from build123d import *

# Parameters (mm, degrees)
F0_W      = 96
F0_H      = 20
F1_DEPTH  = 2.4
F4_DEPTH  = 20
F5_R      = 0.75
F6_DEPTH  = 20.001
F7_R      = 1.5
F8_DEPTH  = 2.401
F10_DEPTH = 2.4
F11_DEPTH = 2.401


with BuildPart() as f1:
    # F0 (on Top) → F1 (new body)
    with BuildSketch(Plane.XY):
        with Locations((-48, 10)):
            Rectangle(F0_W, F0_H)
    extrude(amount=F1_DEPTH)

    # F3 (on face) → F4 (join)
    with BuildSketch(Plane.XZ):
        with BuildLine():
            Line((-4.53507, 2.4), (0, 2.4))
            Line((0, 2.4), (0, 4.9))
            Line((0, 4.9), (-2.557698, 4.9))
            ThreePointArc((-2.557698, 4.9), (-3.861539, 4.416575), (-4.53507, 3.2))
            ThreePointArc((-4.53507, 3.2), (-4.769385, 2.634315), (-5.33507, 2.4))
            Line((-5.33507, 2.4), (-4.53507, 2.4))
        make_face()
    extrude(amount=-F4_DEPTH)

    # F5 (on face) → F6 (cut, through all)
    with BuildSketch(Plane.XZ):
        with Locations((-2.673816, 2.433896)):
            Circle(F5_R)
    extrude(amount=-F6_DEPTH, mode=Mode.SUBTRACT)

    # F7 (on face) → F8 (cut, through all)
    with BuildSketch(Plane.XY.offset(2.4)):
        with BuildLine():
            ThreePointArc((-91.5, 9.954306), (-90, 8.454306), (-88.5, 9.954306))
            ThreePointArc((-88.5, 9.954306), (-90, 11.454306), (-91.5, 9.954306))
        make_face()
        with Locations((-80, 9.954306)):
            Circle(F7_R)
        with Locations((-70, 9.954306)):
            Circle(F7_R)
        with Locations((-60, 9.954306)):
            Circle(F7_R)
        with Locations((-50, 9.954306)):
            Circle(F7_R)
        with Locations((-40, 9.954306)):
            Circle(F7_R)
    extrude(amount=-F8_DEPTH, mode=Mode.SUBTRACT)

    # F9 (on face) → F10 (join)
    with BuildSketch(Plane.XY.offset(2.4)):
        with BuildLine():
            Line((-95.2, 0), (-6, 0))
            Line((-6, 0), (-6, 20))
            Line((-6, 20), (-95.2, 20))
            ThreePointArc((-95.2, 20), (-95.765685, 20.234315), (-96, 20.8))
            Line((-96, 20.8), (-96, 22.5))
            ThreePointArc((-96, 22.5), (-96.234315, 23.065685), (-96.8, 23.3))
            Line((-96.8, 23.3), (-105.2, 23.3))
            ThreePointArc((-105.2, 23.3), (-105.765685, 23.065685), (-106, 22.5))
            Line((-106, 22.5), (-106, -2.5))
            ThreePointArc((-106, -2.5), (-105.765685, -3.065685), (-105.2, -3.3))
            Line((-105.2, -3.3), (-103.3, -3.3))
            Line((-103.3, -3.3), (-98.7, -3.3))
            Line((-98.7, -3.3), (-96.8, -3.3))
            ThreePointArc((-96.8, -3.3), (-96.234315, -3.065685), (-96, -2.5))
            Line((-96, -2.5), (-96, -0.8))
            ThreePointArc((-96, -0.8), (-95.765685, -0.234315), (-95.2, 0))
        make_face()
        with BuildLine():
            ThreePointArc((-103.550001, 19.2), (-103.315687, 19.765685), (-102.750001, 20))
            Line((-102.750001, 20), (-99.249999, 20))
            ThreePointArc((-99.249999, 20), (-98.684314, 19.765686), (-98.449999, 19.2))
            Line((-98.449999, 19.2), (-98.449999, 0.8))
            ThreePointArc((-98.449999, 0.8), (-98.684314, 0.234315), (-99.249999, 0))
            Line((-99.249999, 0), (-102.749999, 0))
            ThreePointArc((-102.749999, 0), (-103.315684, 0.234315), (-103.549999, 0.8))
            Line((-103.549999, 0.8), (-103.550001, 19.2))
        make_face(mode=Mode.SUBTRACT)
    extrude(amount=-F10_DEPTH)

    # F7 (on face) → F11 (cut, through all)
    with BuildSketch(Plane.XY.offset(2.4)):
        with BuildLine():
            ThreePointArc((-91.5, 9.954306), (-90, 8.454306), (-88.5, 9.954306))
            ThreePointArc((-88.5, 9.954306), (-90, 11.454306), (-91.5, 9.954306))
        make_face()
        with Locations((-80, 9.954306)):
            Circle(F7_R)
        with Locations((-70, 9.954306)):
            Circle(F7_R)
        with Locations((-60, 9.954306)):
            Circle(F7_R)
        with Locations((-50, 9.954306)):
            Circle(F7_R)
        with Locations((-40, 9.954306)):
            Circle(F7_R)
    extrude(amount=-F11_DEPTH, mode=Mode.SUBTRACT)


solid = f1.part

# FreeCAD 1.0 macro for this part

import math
import FreeCAD as App
import Part
import Sketcher
from FreeCAD import Vector
Q = App.Units.Quantity

doc = App.newDocument("Part")
params = doc.addObject("Spreadsheet::Sheet", "Params")
for row, (alias, value) in enumerate([
    ("sketch1_width", "96 mm"),
    ("sketch1_height", "20 mm"),
    ("pad1_length", "2.4 mm"),
    ("sketch2_radius", "1.999999 mm"),
    ("sketch2_radius2", "0.800001 mm"),
    ("sketch2_height", "2.5 mm"),
    ("pad2_length", "20 mm"),
    ("sketch3_diameter", "1.5 mm"),
    ("sketch4_diameter", "3 mm"),
    ("sketch5_radius", "0.800001 mm"),
    ("sketch5_height", "20 mm"),
    ("sketch5_height2", "25 mm"),
    ("sketch5_width", "89.2 mm"),
    ("sketch5_width2", "8.4 mm"),
    ("pad3_length", "2.4 mm"),
    ("sketch6_diameter", "3 mm"),
], start=1):
    params.set(f"A{row}", alias)
    params.set(f"B{row}", "=" + value)
    params.setAlias(f"B{row}", alias)

body = doc.addObject("PartDesign::Body", "Body")

sketch1 = doc.addObject("Sketcher::SketchObject", "Sketch")
body.addObject(sketch1)
sketch1.AttachmentSupport = (doc.XY_Plane, [""])
sketch1.MapMode = "FlatFace"
sketch1.addGeometry(Part.LineSegment(Vector(-96, 20, 0), Vector(-96, 0, 0)), False)
sketch1.addGeometry(Part.LineSegment(Vector(-96, 0, 0), Vector(0, 0, 0)), False)
sketch1.addGeometry(Part.LineSegment(Vector(0, 0, 0), Vector(0, 20, 0)), False)
sketch1.addGeometry(Part.LineSegment(Vector(0, 20, 0), Vector(-96, 20, 0)), False)
sketch1.addConstraint(Sketcher.Constraint("Coincident", 0, 2, 1, 1))
sketch1.addConstraint(Sketcher.Constraint("Coincident", 1, 2, 2, 1))
sketch1.addConstraint(Sketcher.Constraint("Coincident", 2, 2, 3, 1))
sketch1.addConstraint(Sketcher.Constraint("Coincident", 3, 2, 0, 1))
sketch1.addConstraint(Sketcher.Constraint("Vertical", 0))
sketch1.addConstraint(Sketcher.Constraint("Horizontal", 1))
sketch1.addConstraint(Sketcher.Constraint("Vertical", 2))
sketch1.addConstraint(Sketcher.Constraint("Horizontal", 3))
sketch1.addConstraint(Sketcher.Constraint("Coincident", 1, 2, -1, 1))
sketch1.addConstraint(Sketcher.Constraint("DistanceX", 1, 1, 1, 2, Q("96 mm")))
sketch1.addConstraint(Sketcher.Constraint("DistanceY", 0, 2, 0, 1, Q("20 mm")))
sketch1.setExpression("Constraints[9]", "Params.sketch1_width")
sketch1.setExpression("Constraints[10]", "Params.sketch1_height")
pad1 = doc.addObject("PartDesign::Pad", "Pad")
body.addObject(pad1)
pad1.Profile = sketch1
pad1.setExpression("Length", "Params.pad1_length")

sketch2 = doc.addObject("Sketcher::SketchObject", "Sketch001")
body.addObject(sketch2)
sketch2.AttachmentSupport = (doc.XZ_Plane, [""])
sketch2.MapMode = "FlatFace"
sketch2.addGeometry(Part.LineSegment(Vector(0, 2.4, 0), Vector(0, 4.9, 0)), False)
sketch2.addGeometry(Part.LineSegment(Vector(0, 4.9, 0), Vector(-2.6, 4.9, 0)), False)
sketch2.addGeometry(Part.ArcOfCircle(Part.Circle(Vector(-2.6, 2.9, 0), Vector(0, 0, 1), 2), math.radians(90), math.radians(171)), False)
sketch2.addGeometry(Part.ArcOfCircle(Part.Circle(Vector(-5.3, 3.2, 0), Vector(0, 0, 1), 0.8), math.radians(-90), math.radians(0)), False)
sketch2.addGeometry(Part.LineSegment(Vector(-5.3, 2.4, 0), Vector(0, 2.4, 0)), False)
sketch2.addConstraint(Sketcher.Constraint("Coincident", 0, 2, 1, 1))
sketch2.addConstraint(Sketcher.Constraint("Tangent", 1, 2, 2, 1))
sketch2.addConstraint(Sketcher.Constraint("Coincident", 2, 2, 3, 2))
sketch2.addConstraint(Sketcher.Constraint("Tangent", 3, 1, 4, 1))
sketch2.addConstraint(Sketcher.Constraint("Coincident", 4, 2, 0, 1))
sketch2.addConstraint(Sketcher.Constraint("Vertical", 0))
sketch2.addConstraint(Sketcher.Constraint("Horizontal", 1))
sketch2.addConstraint(Sketcher.Constraint("Horizontal", 4))
sketch2.addConstraint(Sketcher.Constraint("PointOnObject", 0, 2, -2))
sketch2.addConstraint(Sketcher.Constraint("Horizontal", 3, 3, 2, 2))
sketch2.addConstraint(Sketcher.Constraint("Radius", 2, Q("1.999999 mm")))
sketch2.addConstraint(Sketcher.Constraint("Radius", 3, Q("0.800001 mm")))
sketch2.addConstraint(Sketcher.Constraint("DistanceY", 0, 1, 0, 2, Q("2.5 mm")))
sketch2.addConstraint(Sketcher.Constraint("DistanceY", -1, 1, 2, 3, Q("2.900001 mm")))
sketch2.addConstraint(Sketcher.Constraint("DistanceX", 4, 1, 4, 2, Q("5.33507 mm")))
sketch2.setExpression("Constraints[10]", "Params.sketch2_radius")
sketch2.setExpression("Constraints[11]", "Params.sketch2_radius2")
sketch2.setExpression("Constraints[12]", "Params.sketch2_height")
pad2 = doc.addObject("PartDesign::Pad", "Pad001")
body.addObject(pad2)
pad2.Profile = sketch2
pad2.setExpression("Length", "Params.pad2_length")
pad2.Reversed = True

sketch3 = doc.addObject("Sketcher::SketchObject", "Sketch002")
body.addObject(sketch3)
sketch3.AttachmentSupport = (doc.XZ_Plane, [""])
sketch3.MapMode = "FlatFace"
sketch3.addGeometry(Part.Circle(Vector(-2.7, 2.4, 0), Vector(0, 0, 1), 0.8), False)
sketch3.addConstraint(Sketcher.Constraint("Diameter", 0, Q("1.5 mm")))
sketch3.addConstraint(Sketcher.Constraint("DistanceX", 0, 3, -1, 1, Q("2.673816 mm")))
sketch3.addConstraint(Sketcher.Constraint("DistanceY", -1, 1, 0, 3, Q("2.433896 mm")))
sketch3.setExpression("Constraints[0]", "Params.sketch3_diameter")
pocket1 = doc.addObject("PartDesign::Pocket", "Pocket")
body.addObject(pocket1)
pocket1.Profile = sketch3
pocket1.Type = "ThroughAll"

sketch4 = doc.addObject("Sketcher::SketchObject", "Sketch003")
body.addObject(sketch4)
sketch4.AttachmentSupport = (doc.XY_Plane, [""])
sketch4.MapMode = "FlatFace"
sketch4.AttachmentOffset = App.Placement(Vector(0, 0, 2.4), App.Rotation())
sketch4.addGeometry(Part.Circle(Vector(-90, 10, 0), Vector(0, 0, 1), 1.5), False)
sketch4.addGeometry(Part.Circle(Vector(-80, 10, 0), Vector(0, 0, 1), 1.5), False)
sketch4.addGeometry(Part.Circle(Vector(-70, 10, 0), Vector(0, 0, 1), 1.5), False)
sketch4.addGeometry(Part.Circle(Vector(-60, 10, 0), Vector(0, 0, 1), 1.5), False)
sketch4.addGeometry(Part.Circle(Vector(-50, 10, 0), Vector(0, 0, 1), 1.5), False)
sketch4.addGeometry(Part.Circle(Vector(-40, 10, 0), Vector(0, 0, 1), 1.5), False)
sketch4.addConstraint(Sketcher.Constraint("Equal", 0, 1))
sketch4.addConstraint(Sketcher.Constraint("Equal", 1, 2))
sketch4.addConstraint(Sketcher.Constraint("Equal", 2, 3))
sketch4.addConstraint(Sketcher.Constraint("Equal", 3, 4))
sketch4.addConstraint(Sketcher.Constraint("Equal", 4, 5))
sketch4.addConstraint(Sketcher.Constraint("Horizontal", 0, 3, 1, 3))
sketch4.addConstraint(Sketcher.Constraint("Horizontal", 1, 3, 2, 3))
sketch4.addConstraint(Sketcher.Constraint("Horizontal", 2, 3, 3, 3))
sketch4.addConstraint(Sketcher.Constraint("Horizontal", 3, 3, 4, 3))
sketch4.addConstraint(Sketcher.Constraint("Horizontal", 4, 3, 5, 3))
sketch4.addConstraint(Sketcher.Constraint("Diameter", 0, Q("3 mm")))
sketch4.addConstraint(Sketcher.Constraint("DistanceX", 0, 3, -1, 1, Q("90 mm")))
sketch4.addConstraint(Sketcher.Constraint("DistanceX", 1, 3, -1, 1, Q("80 mm")))
sketch4.addConstraint(Sketcher.Constraint("DistanceX", 2, 3, -1, 1, Q("70 mm")))
sketch4.addConstraint(Sketcher.Constraint("DistanceX", 3, 3, -1, 1, Q("60 mm")))
sketch4.addConstraint(Sketcher.Constraint("DistanceX", 4, 3, -1, 1, Q("50 mm")))
sketch4.addConstraint(Sketcher.Constraint("DistanceX", 5, 3, -1, 1, Q("40 mm")))
sketch4.addConstraint(Sketcher.Constraint("DistanceY", -1, 1, 0, 3, Q("9.954306 mm")))
sketch4.setExpression("Constraints[10]", "Params.sketch4_diameter")
pocket2 = doc.addObject("PartDesign::Pocket", "Pocket001")
body.addObject(pocket2)
pocket2.Profile = sketch4
pocket2.Type = "ThroughAll"

sketch5 = doc.addObject("Sketcher::SketchObject", "Sketch004")
body.addObject(sketch5)
sketch5.AttachmentSupport = (doc.XY_Plane, [""])
sketch5.MapMode = "FlatFace"
sketch5.AttachmentOffset = App.Placement(Vector(0, 0, 2.4), App.Rotation())
sketch5.addGeometry(Part.LineSegment(Vector(-95.2, 0, 0), Vector(-6, 0, 0)), False)
sketch5.addGeometry(Part.LineSegment(Vector(-6, 0, 0), Vector(-6, 20, 0)), False)
sketch5.addGeometry(Part.LineSegment(Vector(-6, 20, 0), Vector(-95.2, 20, 0)), False)
sketch5.addGeometry(Part.ArcOfCircle(Part.Circle(Vector(-95.2, 20.8, 0), Vector(0, 0, 1), 0.8), math.radians(-180), math.radians(-90)), False)
sketch5.addGeometry(Part.LineSegment(Vector(-96, 20.8, 0), Vector(-96, 22.5, 0)), False)
sketch5.addGeometry(Part.ArcOfCircle(Part.Circle(Vector(-96.8, 22.5, 0), Vector(0, 0, 1), 0.8), math.radians(0), math.radians(90)), False)
sketch5.addGeometry(Part.LineSegment(Vector(-96.8, 23.3, 0), Vector(-105.2, 23.3, 0)), False)
sketch5.addGeometry(Part.ArcOfCircle(Part.Circle(Vector(-105.2, 22.5, 0), Vector(0, 0, 1), 0.8), math.radians(90), math.radians(180)), False)
sketch5.addGeometry(Part.LineSegment(Vector(-106, 22.5, 0), Vector(-106, -2.5, 0)), False)
sketch5.addGeometry(Part.ArcOfCircle(Part.Circle(Vector(-105.2, -2.5, 0), Vector(0, 0, 1), 0.8), math.radians(-180), math.radians(-90)), False)
sketch5.addGeometry(Part.LineSegment(Vector(-105.2, -3.3, 0), Vector(-96.8, -3.3, 0)), False)
sketch5.addGeometry(Part.ArcOfCircle(Part.Circle(Vector(-96.8, -2.5, 0), Vector(0, 0, 1), 0.8), math.radians(-90), math.radians(0)), False)
sketch5.addGeometry(Part.LineSegment(Vector(-96, -2.5, 0), Vector(-96, -0.8, 0)), False)
sketch5.addGeometry(Part.ArcOfCircle(Part.Circle(Vector(-95.2, -0.8, 0), Vector(0, 0, 1), 0.8), math.radians(90), math.radians(180)), False)
sketch5.addGeometry(Part.LineSegment(Vector(-103.5, 0.8, 0), Vector(-103.6, 19.2, 0)), False)
sketch5.addGeometry(Part.ArcOfCircle(Part.Circle(Vector(-102.8, 19.2, 0), Vector(0, 0, 1), 0.8), math.radians(90), math.radians(180)), False)
sketch5.addGeometry(Part.LineSegment(Vector(-102.8, 20, 0), Vector(-99.2, 20, 0)), False)
sketch5.addGeometry(Part.ArcOfCircle(Part.Circle(Vector(-99.2, 19.2, 0), Vector(0, 0, 1), 0.8), math.radians(0), math.radians(90)), False)
sketch5.addGeometry(Part.LineSegment(Vector(-98.4, 19.2, 0), Vector(-98.4, 0.8, 0)), False)
sketch5.addGeometry(Part.ArcOfCircle(Part.Circle(Vector(-99.3, 0.8, 0), Vector(0, 0, 1), 0.8), math.radians(-90), math.radians(0)), False)
sketch5.addGeometry(Part.LineSegment(Vector(-99.2, 0, 0), Vector(-102.7, 0, 0)), False)
sketch5.addGeometry(Part.ArcOfCircle(Part.Circle(Vector(-102.7, 0.8, 0), Vector(0, 0, 1), 0.8), math.radians(-180), math.radians(-90)), False)
sketch5.addConstraint(Sketcher.Constraint("Coincident", 0, 2, 1, 1))
sketch5.addConstraint(Sketcher.Constraint("Coincident", 1, 2, 2, 1))
sketch5.addConstraint(Sketcher.Constraint("Tangent", 2, 2, 3, 2))
sketch5.addConstraint(Sketcher.Constraint("Tangent", 3, 1, 4, 1))
sketch5.addConstraint(Sketcher.Constraint("Tangent", 4, 2, 5, 1))
sketch5.addConstraint(Sketcher.Constraint("Tangent", 5, 2, 6, 1))
sketch5.addConstraint(Sketcher.Constraint("Tangent", 6, 2, 7, 1))
sketch5.addConstraint(Sketcher.Constraint("Tangent", 7, 2, 8, 1))
sketch5.addConstraint(Sketcher.Constraint("Tangent", 8, 2, 9, 1))
sketch5.addConstraint(Sketcher.Constraint("Tangent", 9, 2, 10, 1))
sketch5.addConstraint(Sketcher.Constraint("Tangent", 10, 2, 11, 1))
sketch5.addConstraint(Sketcher.Constraint("Tangent", 11, 2, 12, 1))
sketch5.addConstraint(Sketcher.Constraint("Tangent", 12, 2, 13, 2))
sketch5.addConstraint(Sketcher.Constraint("Tangent", 13, 1, 0, 1))
sketch5.addConstraint(Sketcher.Constraint("Tangent", 14, 2, 15, 2))
sketch5.addConstraint(Sketcher.Constraint("Tangent", 15, 1, 16, 1))
sketch5.addConstraint(Sketcher.Constraint("Tangent", 16, 2, 17, 2))
sketch5.addConstraint(Sketcher.Constraint("Tangent", 17, 1, 18, 1))
sketch5.addConstraint(Sketcher.Constraint("Tangent", 18, 2, 19, 2))
sketch5.addConstraint(Sketcher.Constraint("Tangent", 19, 1, 20, 1))
sketch5.addConstraint(Sketcher.Constraint("Tangent", 20, 2, 21, 2))
sketch5.addConstraint(Sketcher.Constraint("Tangent", 21, 1, 14, 1))
sketch5.addConstraint(Sketcher.Constraint("Horizontal", 0))
sketch5.addConstraint(Sketcher.Constraint("Vertical", 1))
sketch5.addConstraint(Sketcher.Constraint("Horizontal", 2))
sketch5.addConstraint(Sketcher.Constraint("Vertical", 4))
sketch5.addConstraint(Sketcher.Constraint("Horizontal", 6))
sketch5.addConstraint(Sketcher.Constraint("Vertical", 8))
sketch5.addConstraint(Sketcher.Constraint("Horizontal", 10))
sketch5.addConstraint(Sketcher.Constraint("Vertical", 12))
sketch5.addConstraint(Sketcher.Constraint("Vertical", 14))
sketch5.addConstraint(Sketcher.Constraint("Horizontal", 16))
sketch5.addConstraint(Sketcher.Constraint("Vertical", 18))
sketch5.addConstraint(Sketcher.Constraint("Horizontal", 20))
sketch5.addConstraint(Sketcher.Constraint("Equal", 3, 5))
sketch5.addConstraint(Sketcher.Constraint("Equal", 5, 7))
sketch5.addConstraint(Sketcher.Constraint("Equal", 7, 9))
sketch5.addConstraint(Sketcher.Constraint("Equal", 9, 11))
sketch5.addConstraint(Sketcher.Constraint("Equal", 11, 13))
sketch5.addConstraint(Sketcher.Constraint("Equal", 13, 15))
sketch5.addConstraint(Sketcher.Constraint("Equal", 15, 17))
sketch5.addConstraint(Sketcher.Constraint("Equal", 17, 19))
sketch5.addConstraint(Sketcher.Constraint("Equal", 19, 21))
sketch5.addConstraint(Sketcher.Constraint("PointOnObject", 0, 2, -1))
sketch5.addConstraint(Sketcher.Constraint("PointOnObject", 19, 1, -1))
sketch5.addConstraint(Sketcher.Constraint("Horizontal", 2, 2, 15, 1))
sketch5.addConstraint(Sketcher.Constraint("Vertical", 5, 3, 11, 3))
sketch5.addConstraint(Sketcher.Constraint("Equal", 4, 12))
sketch5.addConstraint(Sketcher.Constraint("Radius", 3, Q("0.800001 mm")))
sketch5.addConstraint(Sketcher.Constraint("DistanceY", 1, 1, 1, 2, Q("20 mm")))
sketch5.addConstraint(Sketcher.Constraint("DistanceY", 8, 2, 8, 1, Q("25 mm")))
sketch5.addConstraint(Sketcher.Constraint("DistanceX", 0, 1, 0, 2, Q("89.2 mm")))
sketch5.addConstraint(Sketcher.Constraint("DistanceX", 6, 2, 6, 1, Q("8.4 mm")))
sketch5.addConstraint(Sketcher.Constraint("DistanceX", 16, 1, 16, 2, Q("3.500002 mm")))
sketch5.addConstraint(Sketcher.Constraint("DistanceX", 0, 2, -1, 1, Q("6 mm")))
sketch5.addConstraint(Sketcher.Constraint("DistanceX", 15, 3, -1, 1, Q("102.750001 mm")))
sketch5.setExpression("Constraints[48]", "Params.sketch5_radius")
sketch5.setExpression("Constraints[49]", "Params.sketch5_height")
sketch5.setExpression("Constraints[50]", "Params.sketch5_height2")
sketch5.setExpression("Constraints[51]", "Params.sketch5_width")
sketch5.setExpression("Constraints[52]", "Params.sketch5_width2")
pad3 = doc.addObject("PartDesign::Pad", "Pad002")
body.addObject(pad3)
pad3.Profile = sketch5
pad3.setExpression("Length", "Params.pad3_length")
pad3.Reversed = True

sketch6 = doc.addObject("Sketcher::SketchObject", "Sketch005")
body.addObject(sketch6)
sketch6.AttachmentSupport = (doc.XY_Plane, [""])
sketch6.MapMode = "FlatFace"
sketch6.AttachmentOffset = App.Placement(Vector(0, 0, 2.4), App.Rotation())
sketch6.addGeometry(Part.Circle(Vector(-90, 10, 0), Vector(0, 0, 1), 1.5), False)
sketch6.addGeometry(Part.Circle(Vector(-80, 10, 0), Vector(0, 0, 1), 1.5), False)
sketch6.addGeometry(Part.Circle(Vector(-70, 10, 0), Vector(0, 0, 1), 1.5), False)
sketch6.addGeometry(Part.Circle(Vector(-60, 10, 0), Vector(0, 0, 1), 1.5), False)
sketch6.addGeometry(Part.Circle(Vector(-50, 10, 0), Vector(0, 0, 1), 1.5), False)
sketch6.addGeometry(Part.Circle(Vector(-40, 10, 0), Vector(0, 0, 1), 1.5), False)
sketch6.addConstraint(Sketcher.Constraint("Equal", 0, 1))
sketch6.addConstraint(Sketcher.Constraint("Equal", 1, 2))
sketch6.addConstraint(Sketcher.Constraint("Equal", 2, 3))
sketch6.addConstraint(Sketcher.Constraint("Equal", 3, 4))
sketch6.addConstraint(Sketcher.Constraint("Equal", 4, 5))
sketch6.addConstraint(Sketcher.Constraint("Horizontal", 0, 3, 1, 3))
sketch6.addConstraint(Sketcher.Constraint("Horizontal", 1, 3, 2, 3))
sketch6.addConstraint(Sketcher.Constraint("Horizontal", 2, 3, 3, 3))
sketch6.addConstraint(Sketcher.Constraint("Horizontal", 3, 3, 4, 3))
sketch6.addConstraint(Sketcher.Constraint("Horizontal", 4, 3, 5, 3))
sketch6.addConstraint(Sketcher.Constraint("Diameter", 0, Q("3 mm")))
sketch6.addConstraint(Sketcher.Constraint("DistanceX", 0, 3, -1, 1, Q("90 mm")))
sketch6.addConstraint(Sketcher.Constraint("DistanceX", 1, 3, -1, 1, Q("80 mm")))
sketch6.addConstraint(Sketcher.Constraint("DistanceX", 2, 3, -1, 1, Q("70 mm")))
sketch6.addConstraint(Sketcher.Constraint("DistanceX", 3, 3, -1, 1, Q("60 mm")))
sketch6.addConstraint(Sketcher.Constraint("DistanceX", 4, 3, -1, 1, Q("50 mm")))
sketch6.addConstraint(Sketcher.Constraint("DistanceX", 5, 3, -1, 1, Q("40 mm")))
sketch6.addConstraint(Sketcher.Constraint("DistanceY", -1, 1, 0, 3, Q("9.954306 mm")))
sketch6.setExpression("Constraints[10]", "Params.sketch6_diameter")
pocket3 = doc.addObject("PartDesign::Pocket", "Pocket002")
body.addObject(pocket3)
pocket3.Profile = sketch6
pocket3.Type = "ThroughAll"

doc.recompute()
